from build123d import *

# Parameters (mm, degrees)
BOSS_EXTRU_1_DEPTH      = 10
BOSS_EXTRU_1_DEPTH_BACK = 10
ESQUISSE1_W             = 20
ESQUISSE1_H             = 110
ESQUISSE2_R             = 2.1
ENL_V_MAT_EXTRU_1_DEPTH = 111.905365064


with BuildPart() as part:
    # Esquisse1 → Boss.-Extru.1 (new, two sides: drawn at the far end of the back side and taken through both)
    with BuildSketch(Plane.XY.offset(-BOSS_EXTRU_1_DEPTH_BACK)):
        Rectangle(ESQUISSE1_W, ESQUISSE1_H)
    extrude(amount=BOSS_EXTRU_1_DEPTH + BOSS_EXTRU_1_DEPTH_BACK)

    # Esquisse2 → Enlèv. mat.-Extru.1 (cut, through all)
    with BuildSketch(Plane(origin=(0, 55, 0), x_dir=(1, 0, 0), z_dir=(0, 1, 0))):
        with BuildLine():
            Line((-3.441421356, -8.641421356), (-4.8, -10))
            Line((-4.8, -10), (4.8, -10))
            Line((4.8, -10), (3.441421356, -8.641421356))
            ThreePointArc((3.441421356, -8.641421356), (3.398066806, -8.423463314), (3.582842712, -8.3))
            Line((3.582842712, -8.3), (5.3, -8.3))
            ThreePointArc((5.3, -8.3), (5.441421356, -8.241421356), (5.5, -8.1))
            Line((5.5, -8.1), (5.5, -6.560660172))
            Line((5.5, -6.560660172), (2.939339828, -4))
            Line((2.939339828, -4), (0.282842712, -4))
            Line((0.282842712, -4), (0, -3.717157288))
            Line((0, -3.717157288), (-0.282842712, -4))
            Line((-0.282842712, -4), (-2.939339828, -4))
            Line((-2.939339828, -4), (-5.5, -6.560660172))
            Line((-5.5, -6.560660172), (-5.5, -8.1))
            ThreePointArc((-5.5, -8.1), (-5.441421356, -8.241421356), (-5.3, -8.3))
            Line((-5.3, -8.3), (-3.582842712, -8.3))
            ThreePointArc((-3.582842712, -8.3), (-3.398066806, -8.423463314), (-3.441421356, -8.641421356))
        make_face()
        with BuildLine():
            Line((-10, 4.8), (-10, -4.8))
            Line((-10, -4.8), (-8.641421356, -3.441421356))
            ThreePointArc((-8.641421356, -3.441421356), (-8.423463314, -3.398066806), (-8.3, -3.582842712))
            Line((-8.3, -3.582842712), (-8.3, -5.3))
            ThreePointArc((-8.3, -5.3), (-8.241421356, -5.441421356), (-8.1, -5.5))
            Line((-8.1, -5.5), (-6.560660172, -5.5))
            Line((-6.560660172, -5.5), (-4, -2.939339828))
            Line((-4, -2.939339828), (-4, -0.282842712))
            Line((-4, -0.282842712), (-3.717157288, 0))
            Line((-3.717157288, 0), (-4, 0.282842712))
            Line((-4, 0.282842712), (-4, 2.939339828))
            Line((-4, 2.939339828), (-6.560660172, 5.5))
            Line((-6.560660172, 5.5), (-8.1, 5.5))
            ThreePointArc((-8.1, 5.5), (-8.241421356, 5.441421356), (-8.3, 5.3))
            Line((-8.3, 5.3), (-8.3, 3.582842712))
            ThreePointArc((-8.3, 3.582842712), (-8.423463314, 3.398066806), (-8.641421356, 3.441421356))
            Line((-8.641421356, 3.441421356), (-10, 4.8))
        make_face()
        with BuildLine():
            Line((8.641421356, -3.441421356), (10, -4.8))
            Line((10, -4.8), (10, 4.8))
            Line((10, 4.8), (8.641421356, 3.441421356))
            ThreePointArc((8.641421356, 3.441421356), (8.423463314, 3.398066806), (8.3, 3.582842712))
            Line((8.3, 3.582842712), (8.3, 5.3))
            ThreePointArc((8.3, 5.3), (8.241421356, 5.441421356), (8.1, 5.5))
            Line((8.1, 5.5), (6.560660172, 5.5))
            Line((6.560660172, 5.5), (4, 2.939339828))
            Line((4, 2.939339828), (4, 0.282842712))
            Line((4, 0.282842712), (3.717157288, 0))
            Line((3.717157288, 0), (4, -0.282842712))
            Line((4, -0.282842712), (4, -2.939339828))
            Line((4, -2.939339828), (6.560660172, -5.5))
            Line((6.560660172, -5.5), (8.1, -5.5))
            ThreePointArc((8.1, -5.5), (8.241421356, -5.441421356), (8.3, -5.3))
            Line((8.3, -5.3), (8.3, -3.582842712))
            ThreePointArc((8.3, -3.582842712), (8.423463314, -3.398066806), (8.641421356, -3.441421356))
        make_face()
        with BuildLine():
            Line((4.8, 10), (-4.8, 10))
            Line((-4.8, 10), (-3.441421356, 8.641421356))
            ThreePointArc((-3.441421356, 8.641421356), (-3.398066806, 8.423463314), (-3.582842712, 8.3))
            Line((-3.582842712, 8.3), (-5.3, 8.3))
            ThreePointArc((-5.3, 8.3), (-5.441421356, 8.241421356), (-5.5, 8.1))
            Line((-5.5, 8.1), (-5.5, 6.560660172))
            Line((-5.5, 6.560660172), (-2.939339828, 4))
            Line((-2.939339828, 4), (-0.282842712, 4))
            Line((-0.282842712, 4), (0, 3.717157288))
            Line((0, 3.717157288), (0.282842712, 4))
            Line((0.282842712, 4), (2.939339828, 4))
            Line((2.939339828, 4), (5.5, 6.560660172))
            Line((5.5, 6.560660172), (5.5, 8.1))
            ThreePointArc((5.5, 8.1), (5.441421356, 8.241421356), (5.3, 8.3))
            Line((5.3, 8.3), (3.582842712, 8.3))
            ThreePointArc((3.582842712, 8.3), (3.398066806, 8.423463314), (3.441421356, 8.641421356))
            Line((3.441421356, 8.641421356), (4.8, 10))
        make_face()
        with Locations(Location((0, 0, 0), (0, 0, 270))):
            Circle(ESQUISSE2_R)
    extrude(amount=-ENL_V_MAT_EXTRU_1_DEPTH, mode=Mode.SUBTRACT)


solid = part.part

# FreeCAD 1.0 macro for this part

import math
import FreeCAD as App
import Part
import Sketcher
from FreeCAD import Vector

doc = App.newDocument("Part")
body = doc.addObject("PartDesign::Body", "Body")

# Sketch on XY plane
sketch1 = body.newObject("Sketcher::SketchObject", "Sketch")
sketch1.AttachmentSupport = (doc.getObject("XY_Plane"), [""])
sketch1.MapMode = "FlatFace"
sketch1.addGeometry(Part.LineSegment(Vector(-10, 55, 0), Vector(-10, -55, 0)), False)
sketch1.addGeometry(Part.LineSegment(Vector(-10, -55, 0), Vector(10, -55, 0)), False)
sketch1.addGeometry(Part.LineSegment(Vector(10, -55, 0), Vector(10, 55, 0)), False)
sketch1.addGeometry(Part.LineSegment(Vector(10, 55, 0), Vector(-10, 55, 0)), False)
sketch1.addConstraint(Sketcher.Constraint("Coincident", 0, 2, 1, 1))
sketch1.addConstraint(Sketcher.Constraint("Coincident", 1, 2, 2, 1))
sketch1.addConstraint(Sketcher.Constraint("Coincident", 2, 2, 3, 1))
sketch1.addConstraint(Sketcher.Constraint("Coincident", 3, 2, 0, 1))
sketch1.addConstraint(Sketcher.Constraint("Vertical", 0))
sketch1.addConstraint(Sketcher.Constraint("Horizontal", 1))
sketch1.addConstraint(Sketcher.Constraint("Vertical", 2))
sketch1.addConstraint(Sketcher.Constraint("Horizontal", 3))
sketch1.addConstraint(Sketcher.Constraint("Symmetric", 0, 2, 2, 2, -1, 1))
sketch1.addConstraint(Sketcher.Constraint("DistanceX", 1, 1, 1, 2, 20.0))
sketch1.addConstraint(Sketcher.Constraint("DistanceY", 0, 2, 0, 1, 110.0))
pad1 = body.newObject("PartDesign::Pad", "Pad")
pad1.Profile = sketch1
pad1.Type = "TwoLengths"
pad1.Length = 10
pad1.Length2 = 10

# Sketch on XZ plane
sketch2 = body.newObject("Sketcher::SketchObject", "Sketch001")
sketch2.AttachmentSupport = (doc.getObject("XZ_Plane"), [""])
sketch2.MapMode = "FlatFace"
sketch2.AttachmentOffset = App.Placement(Vector(0, 0, -55), App.Rotation())
sketch2.addGeometry(Part.LineSegment(Vector(-3.441421, 8.641421, 0), Vector(-4.8, 10, 0)), False)
sketch2.addGeometry(Part.LineSegment(Vector(-4.8, 10, 0), Vector(4.8, 10, 0)), False)
sketch2.addGeometry(Part.LineSegment(Vector(4.8, 10, 0), Vector(3.441421, 8.641421, 0)), False)
sketch2.addGeometry(Part.ArcOfCircle(Part.Circle(Vector(3.582843, 8.5, 0), Vector(0, 0, 1), 0.2), math.radians(135), math.radians(270)), False)
sketch2.addGeometry(Part.LineSegment(Vector(3.582843, 8.3, 0), Vector(5.3, 8.3, 0)), False)
sketch2.addGeometry(Part.ArcOfCircle(Part.Circle(Vector(5.3, 8.1, 0), Vector(0, 0, 1), 0.2), math.radians(0), math.radians(90)), False)
sketch2.addGeometry(Part.LineSegment(Vector(5.5, 8.1, 0), Vector(5.5, 6.56066, 0)), False)
sketch2.addGeometry(Part.LineSegment(Vector(5.5, 6.56066, 0), Vector(2.93934, 4, 0)), False)
sketch2.addGeometry(Part.LineSegment(Vector(2.93934, 4, 0), Vector(0.282843, 4, 0)), False)
sketch2.addGeometry(Part.LineSegment(Vector(0.282843, 4, 0), Vector(0, 3.717157, 0)), False)
sketch2.addGeometry(Part.LineSegment(Vector(0, 3.717157, 0), Vector(-0.282843, 4, 0)), False)
sketch2.addGeometry(Part.LineSegment(Vector(-0.282843, 4, 0), Vector(-2.93934, 4, 0)), False)
sketch2.addGeometry(Part.LineSegment(Vector(-2.93934, 4, 0), Vector(-5.5, 6.56066, 0)), False)
sketch2.addGeometry(Part.LineSegment(Vector(-5.5, 6.56066, 0), Vector(-5.5, 8.1, 0)), False)
sketch2.addGeometry(Part.ArcOfCircle(Part.Circle(Vector(-5.3, 8.1, 0), Vector(0, 0, 1), 0.2), math.radians(90), math.radians(180)), False)
sketch2.addGeometry(Part.LineSegment(Vector(-5.3, 8.3, 0), Vector(-3.582843, 8.3, 0)), False)
sketch2.addGeometry(Part.ArcOfCircle(Part.Circle(Vector(-3.582843, 8.5, 0), Vector(0, 0, 1), 0.2), math.radians(-90), math.radians(45)), False)
sketch2.addGeometry(Part.LineSegment(Vector(-10, -4.8, 0), Vector(-10, 4.8, 0)), False)
sketch2.addGeometry(Part.LineSegment(Vector(-10, 4.8, 0), Vector(-8.641421, 3.441421, 0)), False)
sketch2.addGeometry(Part.ArcOfCircle(Part.Circle(Vector(-8.5, 3.582843, 0), Vector(0, 0, 1), 0.2), math.radians(-135), math.radians(0)), False)
sketch2.addGeometry(Part.LineSegment(Vector(-8.3, 3.582843, 0), Vector(-8.3, 5.3, 0)), False)
sketch2.addGeometry(Part.ArcOfCircle(Part.Circle(Vector(-8.1, 5.3, 0), Vector(0, 0, 1), 0.2), math.radians(90), math.radians(180)), False)
sketch2.addGeometry(Part.LineSegment(Vector(-8.1, 5.5, 0), Vector(-6.56066, 5.5, 0)), False)
sketch2.addGeometry(Part.LineSegment(Vector(-6.56066, 5.5, 0), Vector(-4, 2.93934, 0)), False)
sketch2.addGeometry(Part.LineSegment(Vector(-4, 2.93934, 0), Vector(-4, 0.282843, 0)), False)
sketch2.addGeometry(Part.LineSegment(Vector(-4, 0.282843, 0), Vector(-3.717157, 0, 0)), False)
sketch2.addGeometry(Part.LineSegment(Vector(-3.717157, 0, 0), Vector(-4, -0.282843, 0)), False)
sketch2.addGeometry(Part.LineSegment(Vector(-4, -0.282843, 0), Vector(-4, -2.93934, 0)), False)
sketch2.addGeometry(Part.LineSegment(Vector(-4, -2.93934, 0), Vector(-6.56066, -5.5, 0)), False)
sketch2.addGeometry(Part.LineSegment(Vector(-6.56066, -5.5, 0), Vector(-8.1, -5.5, 0)), False)
sketch2.addGeometry(Part.ArcOfCircle(Part.Circle(Vector(-8.1, -5.3, 0), Vector(0, 0, 1), 0.2), math.radians(-180), math.radians(-90)), False)
sketch2.addGeometry(Part.LineSegment(Vector(-8.3, -5.3, 0), Vector(-8.3, -3.582843, 0)), False)
sketch2.addGeometry(Part.ArcOfCircle(Part.Circle(Vector(-8.5, -3.582843, 0), Vector(0, 0, 1), 0.2), math.radians(0), math.radians(135)), False)
sketch2.addGeometry(Part.LineSegment(Vector(-8.641421, -3.441421, 0), Vector(-10, -4.8, 0)), False)
sketch2.addGeometry(Part.LineSegment(Vector(8.641421, 3.441421, 0), Vector(10, 4.8, 0)), False)
sketch2.addGeometry(Part.LineSegment(Vector(10, 4.8, 0), Vector(10, -4.8, 0)), False)
sketch2.addGeometry(Part.LineSegment(Vector(10, -4.8, 0), Vector(8.641421, -3.441421, 0)), False)
sketch2.addGeometry(Part.ArcOfCircle(Part.Circle(Vector(8.5, -3.582843, 0), Vector(0, 0, 1), 0.2), math.radians(45), math.radians(180)), False)
sketch2.addGeometry(Part.LineSegment(Vector(8.3, -3.582843, 0), Vector(8.3, -5.3, 0)), False)
sketch2.addGeometry(Part.ArcOfCircle(Part.Circle(Vector(8.1, -5.3, 0), Vector(0, 0, 1), 0.2), math.radians(-90), math.radians(0)), False)
sketch2.addGeometry(Part.LineSegment(Vector(8.1, -5.5, 0), Vector(6.56066, -5.5, 0)), False)
sketch2.addGeometry(Part.LineSegment(Vector(6.56066, -5.5, 0), Vector(4, -2.93934, 0)), False)
sketch2.addGeometry(Part.LineSegment(Vector(4, -2.93934, 0), Vector(4, -0.282843, 0)), False)
sketch2.addGeometry(Part.LineSegment(Vector(4, -0.282843, 0), Vector(3.717157, 0, 0)), False)
sketch2.addGeometry(Part.LineSegment(Vector(3.717157, 0, 0), Vector(4, 0.282843, 0)), False)
sketch2.addGeometry(Part.LineSegment(Vector(4, 0.282843, 0), Vector(4, 2.93934, 0)), False)
sketch2.addGeometry(Part.LineSegment(Vector(4, 2.93934, 0), Vector(6.56066, 5.5, 0)), False)
sketch2.addGeometry(Part.LineSegment(Vector(6.56066, 5.5, 0), Vector(8.1, 5.5, 0)), False)
sketch2.addGeometry(Part.ArcOfCircle(Part.Circle(Vector(8.1, 5.3, 0), Vector(0, 0, 1), 0.2), math.radians(0), math.radians(90)), False)
sketch2.addGeometry(Part.LineSegment(Vector(8.3, 5.3, 0), Vector(8.3, 3.582843, 0)), False)
sketch2.addGeometry(Part.ArcOfCircle(Part.Circle(Vector(8.5, 3.582843, 0), Vector(0, 0, 1), 0.2), math.radians(-180), math.radians(-45)), False)
sketch2.addGeometry(Part.LineSegment(Vector(4.8, -10, 0), Vector(-4.8, -10, 0)), False)
sketch2.addGeometry(Part.LineSegment(Vector(-4.8, -10, 0), Vector(-3.441421, -8.641421, 0)), False)
sketch2.addGeometry(Part.ArcOfCircle(Part.Circle(Vector(-3.582843, -8.5, 0), Vector(0, 0, 1), 0.2), math.radians(-45), math.radians(90)), False)
sketch2.addGeometry(Part.LineSegment(Vector(-3.582843, -8.3, 0), Vector(-5.3, -8.3, 0)), False)
sketch2.addGeometry(Part.ArcOfCircle(Part.Circle(Vector(-5.3, -8.1, 0), Vector(0, 0, 1), 0.2), math.radians(-180), math.radians(-90)), False)
sketch2.addGeometry(Part.LineSegment(Vector(-5.5, -8.1, 0), Vector(-5.5, -6.56066, 0)), False)
sketch2.addGeometry(Part.LineSegment(Vector(-5.5, -6.56066, 0), Vector(-2.93934, -4, 0)), False)
sketch2.addGeometry(Part.LineSegment(Vector(-2.93934, -4, 0), Vector(-0.282843, -4, 0)), False)
sketch2.addGeometry(Part.LineSegment(Vector(-0.282843, -4, 0), Vector(0, -3.717157, 0)), False)
sketch2.addGeometry(Part.LineSegment(Vector(0, -3.717157, 0), Vector(0.282843, -4, 0)), False)
sketch2.addGeometry(Part.LineSegment(Vector(0.282843, -4, 0), Vector(2.93934, -4, 0)), False)
sketch2.addGeometry(Part.LineSegment(Vector(2.93934, -4, 0), Vector(5.5, -6.56066, 0)), False)
sketch2.addGeometry(Part.LineSegment(Vector(5.5, -6.56066, 0), Vector(5.5, -8.1, 0)), False)
sketch2.addGeometry(Part.ArcOfCircle(Part.Circle(Vector(5.3, -8.1, 0), Vector(0, 0, 1), 0.2), math.radians(-90), math.radians(0)), False)
sketch2.addGeometry(Part.LineSegment(Vector(5.3, -8.3, 0), Vector(3.582843, -8.3, 0)), False)
sketch2.addGeometry(Part.ArcOfCircle(Part.Circle(Vector(3.582843, -8.5, 0), Vector(0, 0, 1), 0.2), math.radians(90), math.radians(225)), False)
sketch2.addGeometry(Part.LineSegment(Vector(3.441421, -8.641421, 0), Vector(4.8, -10, 0)), False)
sketch2.addGeometry(Part.Circle(Vector(0, 0, 0), Vector(0, 0, 1), 2.1), False)
sketch2.addConstraint(Sketcher.Constraint("Coincident", 0, 2, 1, 1))
sketch2.addConstraint(Sketcher.Constraint("Coincident", 1, 2, 2, 1))
sketch2.addConstraint(Sketcher.Constraint("Tangent", 2, 2, 3, 1))
sketch2.addConstraint(Sketcher.Constraint("Tangent", 3, 2, 4, 1))
sketch2.addConstraint(Sketcher.Constraint("Tangent", 4, 2, 5, 2))
sketch2.addConstraint(Sketcher.Constraint("Tangent", 5, 1, 6, 1))
sketch2.addConstraint(Sketcher.Constraint("Coincident", 6, 2, 7, 1))
sketch2.addConstraint(Sketcher.Constraint("Coincident", 7, 2, 8, 1))
sketch2.addConstraint(Sketcher.Constraint("Coincident", 8, 2, 9, 1))
sketch2.addConstraint(Sketcher.Constraint("Coincident", 9, 2, 10, 1))
sketch2.addConstraint(Sketcher.Constraint("Coincident", 10, 2, 11, 1))
sketch2.addConstraint(Sketcher.Constraint("Coincident", 11, 2, 12, 1))
sketch2.addConstraint(Sketcher.Constraint("Coincident", 12, 2, 13, 1))
sketch2.addConstraint(Sketcher.Constraint("Tangent", 13, 2, 14, 2))
sketch2.addConstraint(Sketcher.Constraint("Tangent", 14, 1, 15, 1))
sketch2.addConstraint(Sketcher.Constraint("Tangent", 15, 2, 16, 1))
sketch2.addConstraint(Sketcher.Constraint("Tangent", 16, 2, 0, 1))
sketch2.addConstraint(Sketcher.Constraint("Coincident", 17, 2, 18, 1))
sketch2.addConstraint(Sketcher.Constraint("Tangent", 18, 2, 19, 1))
sketch2.addConstraint(Sketcher.Constraint("Tangent", 19, 2, 20, 1))
sketch2.addConstraint(Sketcher.Constraint("Tangent", 20, 2, 21, 2))
sketch2.addConstraint(Sketcher.Constraint("Tangent", 21, 1, 22, 1))
sketch2.addConstraint(Sketcher.Constraint("Coincident", 22, 2, 23, 1))
sketch2.addConstraint(Sketcher.Constraint("Coincident", 23, 2, 24, 1))
sketch2.addConstraint(Sketcher.Constraint("Coincident", 24, 2, 25, 1))
sketch2.addConstraint(Sketcher.Constraint("Coincident", 25, 2, 26, 1))
sketch2.addConstraint(Sketcher.Constraint("Coincident", 26, 2, 27, 1))
sketch2.addConstraint(Sketcher.Constraint("Coincident", 27, 2, 28, 1))
sketch2.addConstraint(Sketcher.Constraint("Coincident", 28, 2, 29, 1))
sketch2.addConstraint(Sketcher.Constraint("Tangent", 29, 2, 30, 2))
sketch2.addConstraint(Sketcher.Constraint("Tangent", 30, 1, 31, 1))
sketch2.addConstraint(Sketcher.Constraint("Tangent", 31, 2, 32, 1))
sketch2.addConstraint(Sketcher.Constraint("Tangent", 32, 2, 33, 1))
sketch2.addConstraint(Sketcher.Constraint("Coincident", 33, 2, 17, 1))
sketch2.addConstraint(Sketcher.Constraint("Coincident", 34, 2, 35, 1))
sketch2.addConstraint(Sketcher.Constraint("Coincident", 35, 2, 36, 1))
sketch2.addConstraint(Sketcher.Constraint("Tangent", 36, 2, 37, 1))
sketch2.addConstraint(Sketcher.Constraint("Tangent", 37, 2, 38, 1))
sketch2.addConstraint(Sketcher.Constraint("Tangent", 38, 2, 39, 2))
sketch2.addConstraint(Sketcher.Constraint("Tangent", 39, 1, 40, 1))
sketch2.addConstraint(Sketcher.Constraint("Coincident", 40, 2, 41, 1))
sketch2.addConstraint(Sketcher.Constraint("Coincident", 41, 2, 42, 1))
sketch2.addConstraint(Sketcher.Constraint("Coincident", 42, 2, 43, 1))
sketch2.addConstraint(Sketcher.Constraint("Coincident", 43, 2, 44, 1))
sketch2.addConstraint(Sketcher.Constraint("Coincident", 44, 2, 45, 1))
sketch2.addConstraint(Sketcher.Constraint("Coincident", 45, 2, 46, 1))
sketch2.addConstraint(Sketcher.Constraint("Coincident", 46, 2, 47, 1))
sketch2.addConstraint(Sketcher.Constraint("Tangent", 47, 2, 48, 2))
sketch2.addConstraint(Sketcher.Constraint("Tangent", 48, 1, 49, 1))
sketch2.addConstraint(Sketcher.Constraint("Tangent", 49, 2, 50, 1))
sketch2.addConstraint(Sketcher.Constraint("Tangent", 50, 2, 34, 1))
sketch2.addConstraint(Sketcher.Constraint("Coincident", 51, 2, 52, 1))
sketch2.addConstraint(Sketcher.Constraint("Tangent", 52, 2, 53, 1))
sketch2.addConstraint(Sketcher.Constraint("Tangent", 53, 2, 54, 1))
sketch2.addConstraint(Sketcher.Constraint("Tangent", 54, 2, 55, 2))
sketch2.addConstraint(Sketcher.Constraint("Tangent", 55, 1, 56, 1))
sketch2.addConstraint(Sketcher.Constraint("Coincident", 56, 2, 57, 1))
sketch2.addConstraint(Sketcher.Constraint("Coincident", 57, 2, 58, 1))
sketch2.addConstraint(Sketcher.Constraint("Coincident", 58, 2, 59, 1))
sketch2.addConstraint(Sketcher.Constraint("Coincident", 59, 2, 60, 1))
sketch2.addConstraint(Sketcher.Constraint("Coincident", 60, 2, 61, 1))
sketch2.addConstraint(Sketcher.Constraint("Coincident", 61, 2, 62, 1))
sketch2.addConstraint(Sketcher.Constraint("Coincident", 62, 2, 63, 1))
sketch2.addConstraint(Sketcher.Constraint("Tangent", 63, 2, 64, 2))
sketch2.addConstraint(Sketcher.Constraint("Tangent", 64, 1, 65, 1))
sketch2.addConstraint(Sketcher.Constraint("Tangent", 65, 2, 66, 1))
sketch2.addConstraint(Sketcher.Constraint("Tangent", 66, 2, 67, 1))
sketch2.addConstraint(Sketcher.Constraint("Coincident", 67, 2, 51, 1))
sketch2.addConstraint(Sketcher.Constraint("Horizontal", 1))
sketch2.addConstraint(Sketcher.Constraint("Horizontal", 4))
sketch2.addConstraint(Sketcher.Constraint("Vertical", 6))
sketch2.addConstraint(Sketcher.Constraint("Horizontal", 8))
sketch2.addConstraint(Sketcher.Constraint("Horizontal", 11))
sketch2.addConstraint(Sketcher.Constraint("Vertical", 13))
sketch2.addConstraint(Sketcher.Constraint("Horizontal", 15))
sketch2.addConstraint(Sketcher.Constraint("Vertical", 17))
sketch2.addConstraint(Sketcher.Constraint("Vertical", 20))
sketch2.addConstraint(Sketcher.Constraint("Horizontal", 22))
sketch2.addConstraint(Sketcher.Constraint("Vertical", 24))
sketch2.addConstraint(Sketcher.Constraint("Vertical", 27))
sketch2.addConstraint(Sketcher.Constraint("Horizontal", 29))
sketch2.addConstraint(Sketcher.Constraint("Vertical", 31))
sketch2.addConstraint(Sketcher.Constraint("Vertical", 35))
sketch2.addConstraint(Sketcher.Constraint("Vertical", 38))
sketch2.addConstraint(Sketcher.Constraint("Horizontal", 40))
sketch2.addConstraint(Sketcher.Constraint("Vertical", 42))
sketch2.addConstraint(Sketcher.Constraint("Vertical", 45))
sketch2.addConstraint(Sketcher.Constraint("Horizontal", 47))
sketch2.addConstraint(Sketcher.Constraint("Vertical", 49))
sketch2.addConstraint(Sketcher.Constraint("Horizontal", 51))
sketch2.addConstraint(Sketcher.Constraint("Horizontal", 54))
sketch2.addConstraint(Sketcher.Constraint("Vertical", 56))
sketch2.addConstraint(Sketcher.Constraint("Horizontal", 58))
sketch2.addConstraint(Sketcher.Constraint("Horizontal", 61))
sketch2.addConstraint(Sketcher.Constraint("Vertical", 63))
sketch2.addConstraint(Sketcher.Constraint("Horizontal", 65))
sketch2.addConstraint(Sketcher.Constraint("Coincident", 68, 3, -1, 1))
sketch2.addConstraint(Sketcher.Constraint("Equal", 3, 5))
sketch2.addConstraint(Sketcher.Constraint("Equal", 5, 14))
sketch2.addConstraint(Sketcher.Constraint("Equal", 14, 16))
sketch2.addConstraint(Sketcher.Constraint("Equal", 16, 19))
sketch2.addConstraint(Sketcher.Constraint("Equal", 19, 21))
sketch2.addConstraint(Sketcher.Constraint("Equal", 21, 30))
sketch2.addConstraint(Sketcher.Constraint("Equal", 30, 32))
sketch2.addConstraint(Sketcher.Constraint("Equal", 32, 37))
sketch2.addConstraint(Sketcher.Constraint("Equal", 37, 39))
sketch2.addConstraint(Sketcher.Constraint("Equal", 39, 48))
sketch2.addConstraint(Sketcher.Constraint("Equal", 48, 50))
sketch2.addConstraint(Sketcher.Constraint("Equal", 50, 53))
sketch2.addConstraint(Sketcher.Constraint("Equal", 53, 55))
sketch2.addConstraint(Sketcher.Constraint("Equal", 55, 64))
sketch2.addConstraint(Sketcher.Constraint("Equal", 64, 66))
sketch2.addConstraint(Sketcher.Constraint("Symmetric", 19, 3, 37, 3, -1, 1))
sketch2.addConstraint(Sketcher.Constraint("Symmetric", 30, 3, 48, 3, -1, 1))
sketch2.addConstraint(Sketcher.Constraint("Symmetric", 3, 3, 53, 3, -1, 1))
sketch2.addConstraint(Sketcher.Constraint("Symmetric", 14, 3, 64, 3, -1, 1))
sketch2.addConstraint(Sketcher.Constraint("Symmetric", 33, 2, 34, 2, -1, 1))
sketch2.addConstraint(Sketcher.Constraint("Symmetric", 22, 2, 40, 2, -1, 1))
sketch2.addConstraint(Sketcher.Constraint("Symmetric", 23, 2, 41, 2, -1, 1))
sketch2.addConstraint(Sketcher.Constraint("Symmetric", 25, 2, 43, 2, -1, 1))
sketch2.addConstraint(Sketcher.Constraint("Symmetric", 26, 2, 44, 2, -1, 1))
sketch2.addConstraint(Sketcher.Constraint("Symmetric", 1, 2, 51, 2, -1, 1))
sketch2.addConstraint(Sketcher.Constraint("Symmetric", 6, 2, 56, 2, -1, 1))
sketch2.addConstraint(Sketcher.Constraint("Symmetric", 7, 2, 57, 2, -1, 1))
sketch2.addConstraint(Sketcher.Constraint("Symmetric", 9, 2, 59, 2, -1, 1))
sketch2.addConstraint(Sketcher.Constraint("Symmetric", 10, 2, 60, 2, -1, 1))
sketch2.addConstraint(Sketcher.Constraint("Symmetric", 16, 2, 66, 2, -1, 1))
sketch2.addConstraint(Sketcher.Constraint("Symmetric", 5, 3, 14, 3, -2))
sketch2.addConstraint(Sketcher.Constraint("Symmetric", 32, 3, 37, 3, -2))
sketch2.addConstraint(Sketcher.Constraint("Symmetric", 8, 2, 10, 2, -2))
sketch2.addConstraint(Sketcher.Constraint("Symmetric", 2, 2, 16, 2, -2))
sketch2.addConstraint(Sketcher.Constraint("Symmetric", 28, 2, 40, 2, -2))
sketch2.addConstraint(Sketcher.Constraint("Symmetric", 27, 2, 41, 2, -2))
sketch2.addConstraint(Sketcher.Constraint("Symmetric", 18, 2, 50, 2, -2))
sketch2.addConstraint(Sketcher.Constraint("PointOnObject", 9, 2, -2))
sketch2.addConstraint(Sketcher.Constraint("PointOnObject", 25, 2, -1))
sketch2.addConstraint(Sketcher.Constraint("Perpendicular", 0, 2))
sketch2.addConstraint(Sketcher.Constraint("Parallel", 2, 7))
sketch2.addConstraint(Sketcher.Constraint("Parallel", 7, 9))
sketch2.addConstraint(Sketcher.Constraint("Parallel", 10, 12))
sketch2.addConstraint(Sketcher.Constraint("Parallel", 12, 18))
sketch2.addConstraint(Sketcher.Constraint("Parallel", 18, 23))
sketch2.addConstraint(Sketcher.Constraint("Parallel", 23, 25))
sketch2.addConstraint(Sketcher.Constraint("Perpendicular", 25, 26))
sketch2.addConstraint(Sketcher.Constraint("Perpendicular", 34, 36))
sketch2.addConstraint(Sketcher.Constraint("Parallel", 41, 43))
sketch2.addConstraint(Sketcher.Constraint("Parallel", 44, 46))
sketch2.addConstraint(Sketcher.Constraint("Parallel", 57, 59))
sketch2.addConstraint(Sketcher.Constraint("Parallel", 60, 62))
sketch2.addConstraint(Sketcher.Constraint("Horizontal", 6, 2, 12, 2))
sketch2.addConstraint(Sketcher.Constraint("Horizontal", 23, 2, 45, 2))
sketch2.addConstraint(Sketcher.Constraint("Horizontal", 56, 2, 62, 2))
sketch2.addConstraint(Sketcher.Constraint("Equal", 47, 6))
sketch2.addConstraint(Sketcher.Constraint("Equal", 51, 17))
sketch2.addConstraint(Sketcher.Constraint("Equal", 65, 20))
sketch2.addConstraint(Sketcher.Constraint("Equal", 61, 24))
sketch2.addConstraint(Sketcher.Constraint("Equal", 2, 18))
sketch2.addConstraint(Sketcher.Constraint("Equal", 12, 23))
sketch2.addConstraint(Sketcher.Constraint("Diameter", 68, 4.2))
sketch2.addConstraint(Sketcher.Constraint("Radius", 3, 0.2))
sketch2.addConstraint(Sketcher.Constraint("DistanceX", 1, 1, 1, 2, 9.6))
sketch2.addConstraint(Sketcher.Constraint("DistanceY", -1, 1, 0, 2, 10.0))
sketch2.addConstraint(Sketcher.Constraint("DistanceY", -1, 1, 7, 2, 4.0))
sketch2.addConstraint(Sketcher.Constraint("DistanceX", 17, 2, -1, 1, 10.0))
sketch2.addConstraint(Sketcher.Constraint("Distance", 9, 0.4))
sketch2.addConstraint(Sketcher.Constraint("DistanceY", -1, 1, 3, 3, 8.5))
sketch2.addConstraint(Sketcher.Constraint("DistanceX", -1, 1, 5, 3, 5.3))
sketch2.addConstraint(Sketcher.Constraint("DistanceX", 22, 1, 22, 2, 1.53934))
pocket1 = body.newObject("PartDesign::Pocket", "Pocket")
pocket1.Profile = sketch2
pocket1.Type = "ThroughAll"
pocket1.Reversed = True

doc.recompute()
